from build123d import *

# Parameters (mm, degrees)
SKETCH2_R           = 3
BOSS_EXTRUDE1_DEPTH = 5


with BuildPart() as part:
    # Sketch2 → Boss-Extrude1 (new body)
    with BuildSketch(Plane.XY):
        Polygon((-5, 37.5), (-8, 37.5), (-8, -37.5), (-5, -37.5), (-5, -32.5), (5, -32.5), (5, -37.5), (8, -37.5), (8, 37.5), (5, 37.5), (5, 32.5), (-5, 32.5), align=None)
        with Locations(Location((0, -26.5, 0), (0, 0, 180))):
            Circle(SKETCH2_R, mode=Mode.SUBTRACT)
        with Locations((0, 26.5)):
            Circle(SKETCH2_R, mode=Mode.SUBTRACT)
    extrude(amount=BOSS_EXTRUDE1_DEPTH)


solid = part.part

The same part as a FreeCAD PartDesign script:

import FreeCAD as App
import Part
import Sketcher

V = App.Vector
Q = App.Units.Quantity

doc = App.newDocument("Part")
params = doc.addObject("Spreadsheet::Sheet", "Params")
for row, (alias, value) in enumerate([
    ("sketch1_diameter", "6 mm"),
    ("sketch1_width", "3 mm"),
    ("sketch1_width2", "10 mm"),
    ("sketch1_height", "75 mm"),
    ("sketch1_height2", "5 mm"),
    ("pad1_length", "5 mm"),
], start=1):
    params.set(f"A{row}", alias)
    params.set(f"B{row}", "=" + value)
    params.setAlias(f"B{row}", alias)

body = doc.addObject("PartDesign::Body", "Body")

# Sketch on XY plane
sketch1 = doc.addObject("Sketcher::SketchObject", "Sketch")
body.addObject(sketch1)
sketch1.AttachmentSupport = (doc.XY_Plane, [""])
sketch1.MapMode = "FlatFace"
sketch1.addGeometry(Part.LineSegment(V(-5, 37.5, 0), V(-8, 37.5, 0)), False)
sketch1.addGeometry(Part.LineSegment(V(-8, 37.5, 0), V(-8, -37.5, 0)), False)
sketch1.addGeometry(Part.LineSegment(V(-8, -37.5, 0), V(-5, -37.5, 0)), False)
sketch1.addGeometry(Part.LineSegment(V(-5, -37.5, 0), V(-5, -32.5, 0)), False)
sketch1.addGeometry(Part.LineSegment(V(-5, -32.5, 0), V(5, -32.5, 0)), False)
sketch1.addGeometry(Part.LineSegment(V(5, -32.5, 0), V(5, -37.5, 0)), False)
sketch1.addGeometry(Part.LineSegment(V(5, -37.5, 0), V(8, -37.5, 0)), False)
sketch1.addGeometry(Part.LineSegment(V(8, -37.5, 0), V(8, 37.5, 0)), False)
sketch1.addGeometry(Part.LineSegment(V(8, 37.5, 0), V(5, 37.5, 0)), False)
sketch1.addGeometry(Part.LineSegment(V(5, 37.5, 0), V(5, 32.5, 0)), False)
sketch1.addGeometry(Part.LineSegment(V(5, 32.5, 0), V(-5, 32.5, 0)), False)
sketch1.addGeometry(Part.LineSegment(V(-5, 32.5, 0), V(-5, 37.5, 0)), False)
sketch1.addGeometry(Part.Circle(V(0, -26.5, 0), V(0, 0, 1), 3), False)
sketch1.addGeometry(Part.Circle(V(0, 26.5, 0), V(0, 0, 1), 3), False)
sketch1.addConstraint(Sketcher.Constraint("Coincident", 0, 2, 1, 1))
sketch1.addConstraint(Sketcher.Constraint("Coincident", 1, 2, 2, 1))
sketch1.addConstraint(Sketcher.Constraint("Coincident", 2, 2, 3, 1))
sketch1.addConstraint(Sketcher.Constraint("Coincident", 3, 2, 4, 1))
sketch1.addConstraint(Sketcher.Constraint("Coincident", 4, 2, 5, 1))
sketch1.addConstraint(Sketcher.Constraint("Coincident", 5, 2, 6, 1))
sketch1.addConstraint(Sketcher.Constraint("Coincident", 6, 2, 7, 1))
sketch1.addConstraint(Sketcher.Constraint("Coincident", 7, 2, 8, 1))
sketch1.addConstraint(Sketcher.Constraint("Coincident", 8, 2, 9, 1))
sketch1.addConstraint(Sketcher.Constraint("Coincident", 9, 2, 10, 1))
sketch1.addConstraint(Sketcher.Constraint("Coincident", 10, 2, 11, 1))
sketch1.addConstraint(Sketcher.Constraint("Coincident", 11, 2, 0, 1))
sketch1.addConstraint(Sketcher.Constraint("Horizontal", 0))
sketch1.addConstraint(Sketcher.Constraint("Vertical", 1))
sketch1.addConstraint(Sketcher.Constraint("Horizontal", 2))
sketch1.addConstraint(Sketcher.Constraint("Vertical", 3))
sketch1.addConstraint(Sketcher.Constraint("Horizontal", 4))
sketch1.addConstraint(Sketcher.Constraint("Vertical", 5))
sketch1.addConstraint(Sketcher.Constraint("Horizontal", 6))
sketch1.addConstraint(Sketcher.Constraint("Vertical", 7))
sketch1.addConstraint(Sketcher.Constraint("Horizontal", 8))
sketch1.addConstraint(Sketcher.Constraint("Vertical", 9))
sketch1.addConstraint(Sketcher.Constraint("Horizontal", 10))
sketch1.addConstraint(Sketcher.Constraint("Vertical", 11))
sketch1.addConstraint(Sketcher.Constraint("Equal", 12, 13))
sketch1.addConstraint(Sketcher.Constraint("Symmetric", 12, 3, 13, 3, -1, 1))
sketch1.addConstraint(Sketcher.Constraint("Symmetric", 0, 2, 6, 2, -1, 1))
sketch1.addConstraint(Sketcher.Constraint("Symmetric", 2, 2, 8, 2, -1, 1))
sketch1.addConstraint(Sketcher.Constraint("Symmetric", 4, 2, 10, 2, -1, 1))
sketch1.addConstraint(Sketcher.Constraint("Symmetric", 2, 2, 5, 2, -2))
sketch1.addConstraint(Sketcher.Constraint("PointOnObject", 12, 3, -2))
sketch1.addConstraint(Sketcher.Constraint("Diameter", 12, Q("6 mm")))
sketch1.addConstraint(Sketcher.Constraint("DistanceX", 0, 2, 0, 1, Q("3 mm")))
sketch1.addConstraint(Sketcher.Constraint("DistanceX", 4, 1, 4, 2, Q("10 mm")))
sketch1.addConstraint(Sketcher.Constraint("DistanceY", 1, 2, 1, 1, Q("75 mm")))
sketch1.addConstraint(Sketcher.Constraint("DistanceY", 3, 1, 3, 2, Q("5 mm")))
sketch1.addConstraint(Sketcher.Constraint("DistanceY", 12, 3, 13, 3, Q("53 mm")))
sketch1.setExpression("Constraints[31]", "Params.sketch1_diameter")
sketch1.setExpression("Constraints[32]", "Params.sketch1_width")
sketch1.setExpression("Constraints[33]", "Params.sketch1_width2")
sketch1.setExpression("Constraints[34]", "Params.sketch1_height")
sketch1.setExpression("Constraints[35]", "Params.sketch1_height2")
pad1 = doc.addObject("PartDesign::Pad", "Pad")
body.addObject(pad1)
pad1.Profile = sketch1
pad1.setExpression("Length", "Params.pad1_length")

doc.recompute()
